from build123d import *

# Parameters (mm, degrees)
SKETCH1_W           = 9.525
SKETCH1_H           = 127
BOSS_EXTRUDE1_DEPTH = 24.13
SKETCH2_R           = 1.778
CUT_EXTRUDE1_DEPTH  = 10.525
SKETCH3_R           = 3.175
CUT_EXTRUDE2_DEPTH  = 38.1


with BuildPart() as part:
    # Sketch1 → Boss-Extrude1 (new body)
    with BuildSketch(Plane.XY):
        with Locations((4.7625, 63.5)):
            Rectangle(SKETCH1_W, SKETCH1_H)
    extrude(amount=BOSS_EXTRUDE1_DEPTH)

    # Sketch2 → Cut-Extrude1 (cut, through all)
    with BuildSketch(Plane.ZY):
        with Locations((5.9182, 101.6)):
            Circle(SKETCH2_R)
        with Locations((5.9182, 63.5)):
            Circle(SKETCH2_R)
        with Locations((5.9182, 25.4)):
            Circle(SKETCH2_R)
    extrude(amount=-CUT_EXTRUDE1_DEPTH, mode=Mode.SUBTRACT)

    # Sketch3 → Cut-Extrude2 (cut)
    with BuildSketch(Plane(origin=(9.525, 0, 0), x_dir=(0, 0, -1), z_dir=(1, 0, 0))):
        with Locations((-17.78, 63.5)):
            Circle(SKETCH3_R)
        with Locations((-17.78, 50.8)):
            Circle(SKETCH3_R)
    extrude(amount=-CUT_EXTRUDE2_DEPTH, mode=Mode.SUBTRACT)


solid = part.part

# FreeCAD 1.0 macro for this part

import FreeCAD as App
import Part
import Sketcher

V = App.Vector
Q = App.Units.Quantity


def add_polygon(sketch, points):
    """Adds a closed chain of lines whose ends are joined by coincident constraints."""
    first, n = sketch.GeometryCount, len(points)
    for a, b in zip(points, points[1:] + points[:1]):
        sketch.addGeometry(Part.LineSegment(App.Vector(*a, 0), App.Vector(*b, 0)), False)
    for i in range(n):
        sketch.addConstraint(Sketcher.Constraint("Coincident", first + i, 2, first + (i + 1) % n, 1))

doc = App.newDocument("Part")
body = doc.addObject("PartDesign::Body", "Body")

sketch1 = body.newObject("Sketcher::SketchObject", "Sketch")
sketch1.AttachmentSupport = (doc.getObject("XY_Plane"), [""])
sketch1.MapMode = "FlatFace"
add_polygon(sketch1, [(0, 127), (0, 0), (10, 0), (10, 127)])
sketch1.addConstraint([
    Sketcher.Constraint("Vertical", 0),
    Sketcher.Constraint("Horizontal", 1),
    Sketcher.Constraint("Vertical", 2),
    Sketcher.Constraint("Horizontal", 3),
    Sketcher.Constraint("Coincident", 0, 2, -1, 1),
    Sketcher.Constraint("DistanceY", 0, 2, 0, 1, Q("5 in")),
    Sketcher.Constraint("DistanceX", 1, 1, 1, 2, Q("0.375 in")),
])
pad1 = body.newObject("PartDesign::Pad", "Pad")
pad1.Profile = sketch1
pad1.Length = Q("0.95 in")

sketch2 = body.newObject("Sketcher::SketchObject", "Sketch001")
sketch2.AttachmentSupport = (doc.getObject("YZ_Plane"), [""])
sketch2.MapMode = "FlatFace"
sketch2.addGeometry([
    Part.Circle(V(101.6, 5.9, 0), V(0, 0, 1), 1.8),
    Part.Circle(V(63.5, 5.9, 0), V(0, 0, 1), 1.8),
    Part.Circle(V(25.4, 5.9, 0), V(0, 0, 1), 1.8),
], False)
sketch2.addConstraint([
    Sketcher.Constraint("Equal", 0, 1),
    Sketcher.Constraint("Equal", 1, 2),
    Sketcher.Constraint("Horizontal", 0, 3, 1, 3),
    Sketcher.Constraint("Horizontal", 1, 3, 2, 3),
    Sketcher.Constraint("Diameter", 0, Q("0.14 in")),
    Sketcher.Constraint("DistanceX", -1, 1, 0, 3, Q("4 in")),
    Sketcher.Constraint("DistanceX", -1, 1, 2, 3, Q("1 in")),
    Sketcher.Constraint("DistanceX", -1, 1, 1, 3, Q("2.5 in")),
    Sketcher.Constraint("DistanceY", -1, 1, 0, 3, Q("0.233 in")),
])
pocket1 = body.newObject("PartDesign::Pocket", "Pocket")
pocket1.Profile = sketch2
pocket1.Type = "ThroughAll"
pocket1.Reversed = True

sketch3 = body.newObject("Sketcher::SketchObject", "Sketch002")
sketch3.AttachmentSupport = (doc.getObject("YZ_Plane"), [""])
sketch3.MapMode = "FlatFace"
sketch3.AttachmentOffset = App.Placement(V(0, 0, 0.375 * 25.4), App.Rotation())
sketch3.addGeometry([
    Part.Circle(V(63.5, 17.8, 0), V(0, 0, 1), 3.2),
    Part.Circle(V(50.8, 17.8, 0), V(0, 0, 1), 3.2),
], False)
sketch3.addConstraint([
    Sketcher.Constraint("Equal", 0, 1),
    Sketcher.Constraint("Horizontal", 0, 3, 1, 3),
    Sketcher.Constraint("Diameter", 0, Q("0.25 in")),
    Sketcher.Constraint("DistanceX", -1, 1, 1, 3, Q("2 in")),
    Sketcher.Constraint("DistanceX", -1, 1, 0, 3, Q("2.5 in")),
    Sketcher.Constraint("DistanceY", -1, 1, 0, 3, Q("0.7 in")),
])
pocket2 = body.newObject("PartDesign::Pocket", "Pocket001")
pocket2.Profile = sketch3
pocket2.Length = Q("1.5 in")

doc.recompute()
